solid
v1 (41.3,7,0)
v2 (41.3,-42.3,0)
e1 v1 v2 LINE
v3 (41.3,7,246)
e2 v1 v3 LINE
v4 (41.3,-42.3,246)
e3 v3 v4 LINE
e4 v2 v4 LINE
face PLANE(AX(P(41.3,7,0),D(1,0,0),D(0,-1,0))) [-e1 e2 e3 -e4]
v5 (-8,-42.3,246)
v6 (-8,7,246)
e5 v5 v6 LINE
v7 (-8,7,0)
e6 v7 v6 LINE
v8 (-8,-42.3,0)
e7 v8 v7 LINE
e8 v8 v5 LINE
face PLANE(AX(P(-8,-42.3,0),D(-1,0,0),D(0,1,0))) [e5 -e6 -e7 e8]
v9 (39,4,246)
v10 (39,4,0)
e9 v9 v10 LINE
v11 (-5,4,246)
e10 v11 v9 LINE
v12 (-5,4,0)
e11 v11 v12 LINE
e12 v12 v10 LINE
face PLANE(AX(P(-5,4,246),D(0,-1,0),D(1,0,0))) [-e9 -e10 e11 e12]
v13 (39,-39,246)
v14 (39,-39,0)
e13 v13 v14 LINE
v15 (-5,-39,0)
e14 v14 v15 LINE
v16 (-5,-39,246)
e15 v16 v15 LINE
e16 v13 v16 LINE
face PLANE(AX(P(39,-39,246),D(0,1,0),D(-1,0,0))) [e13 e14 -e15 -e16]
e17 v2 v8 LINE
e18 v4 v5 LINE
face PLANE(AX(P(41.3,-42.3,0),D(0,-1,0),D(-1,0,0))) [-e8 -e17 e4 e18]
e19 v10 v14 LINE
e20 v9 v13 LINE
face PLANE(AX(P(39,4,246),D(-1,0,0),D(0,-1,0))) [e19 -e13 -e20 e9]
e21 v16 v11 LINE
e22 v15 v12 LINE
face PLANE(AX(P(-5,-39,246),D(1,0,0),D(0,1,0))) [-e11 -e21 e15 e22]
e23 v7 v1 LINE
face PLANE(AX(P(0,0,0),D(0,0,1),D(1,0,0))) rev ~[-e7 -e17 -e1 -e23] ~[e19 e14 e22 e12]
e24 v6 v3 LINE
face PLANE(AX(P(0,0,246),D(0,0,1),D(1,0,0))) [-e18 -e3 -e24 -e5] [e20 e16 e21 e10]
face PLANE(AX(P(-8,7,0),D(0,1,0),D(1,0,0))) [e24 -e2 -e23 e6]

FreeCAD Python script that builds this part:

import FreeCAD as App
import Part
import Sketcher

V = App.Vector


def add_polygon(sketch, points):
    """Adds a closed chain of lines whose ends are joined by coincident constraints."""
    first, n = sketch.GeometryCount, len(points)
    for a, b in zip(points, points[1:] + points[:1]):
        sketch.addGeometry(Part.LineSegment(App.Vector(*a, 0), App.Vector(*b, 0)), False)
    for i in range(n):
        sketch.addConstraint(Sketcher.Constraint("Coincident", first + i, 2, first + (i + 1) % n, 1))

doc = App.newDocument("Part")
params = doc.addObject("Spreadsheet::Sheet", "Params")
for row, (alias, value) in enumerate([
    ("sketch1_width", "49.3 mm"),
    ("pad1_length", "246 mm"),
    ("sketch2_width", "44 mm"),
    ("sketch2_height", "43 mm"),
], start=1):
    params.set(f"A{row}", alias)
    params.set(f"B{row}", "=" + value)
    params.setAlias(f"B{row}", alias)

body = doc.addObject("PartDesign::Body", "Body")

sketch1 = body.newObject("Sketcher::SketchObject", "Sketch")
sketch1.AttachmentSupport = (doc.getObject("XY_Plane"), [""])
sketch1.MapMode = "FlatFace"
add_polygon(sketch1, [(41, 7), (-8, 7), (-8, -42), (41, -42)])
sketch1.addConstraint([
    Sketcher.Constraint("Horizontal", 0),
    Sketcher.Constraint("Vertical", 1),
    Sketcher.Constraint("Horizontal", 2),
    Sketcher.Constraint("Vertical", 3),
    Sketcher.Constraint("Equal", 2, 1),
    Sketcher.Constraint("DistanceX", 0, 2, 0, 1, 49.3),
    Sketcher.Constraint("DistanceX", 0, 2, -1, 1, 8.0),
    Sketcher.Constraint("DistanceY", -1, 1, 0, 2, 7.0),
])
sketch1.setExpression("Constraints[9]", "Params.sketch1_width")
pad1 = body.newObject("PartDesign::Pad", "Pad")
pad1.Profile = sketch1
pad1.setExpression("Length", "Params.pad1_length")

sketch2 = body.newObject("Sketcher::SketchObject", "Sketch001")
sketch2.AttachmentSupport = (doc.getObject("XY_Plane"), [""])
sketch2.MapMode = "FlatFace"
sketch2.AttachmentOffset = App.Placement(V(0, 0, 246), App.Rotation())
add_polygon(sketch2, [(39, 4), (-5, 4), (-5, -39), (39, -39)])
sketch2.addConstraint([
    Sketcher.Constraint("Horizontal", 0),
    Sketcher.Constraint("Vertical", 1),
    Sketcher.Constraint("Horizontal", 2),
    Sketcher.Constraint("Vertical", 3),
    Sketcher.Constraint("DistanceX", 0, 2, 0, 1, 44.0),
    Sketcher.Constraint("DistanceY", 1, 2, 1, 1, 43.0),
    Sketcher.Constraint("DistanceX", 0, 2, -1, 1, 5.0),
    Sketcher.Constraint("DistanceY", -1, 1, 0, 2, 4.0),
])
sketch2.setExpression("Constraints[8]", "Params.sketch2_width")
sketch2.setExpression("Constraints[9]", "Params.sketch2_height")
pocket1 = body.newObject("PartDesign::Pocket", "Pocket")
pocket1.Profile = sketch2
pocket1.Type = "ThroughAll"

doc.recompute()
